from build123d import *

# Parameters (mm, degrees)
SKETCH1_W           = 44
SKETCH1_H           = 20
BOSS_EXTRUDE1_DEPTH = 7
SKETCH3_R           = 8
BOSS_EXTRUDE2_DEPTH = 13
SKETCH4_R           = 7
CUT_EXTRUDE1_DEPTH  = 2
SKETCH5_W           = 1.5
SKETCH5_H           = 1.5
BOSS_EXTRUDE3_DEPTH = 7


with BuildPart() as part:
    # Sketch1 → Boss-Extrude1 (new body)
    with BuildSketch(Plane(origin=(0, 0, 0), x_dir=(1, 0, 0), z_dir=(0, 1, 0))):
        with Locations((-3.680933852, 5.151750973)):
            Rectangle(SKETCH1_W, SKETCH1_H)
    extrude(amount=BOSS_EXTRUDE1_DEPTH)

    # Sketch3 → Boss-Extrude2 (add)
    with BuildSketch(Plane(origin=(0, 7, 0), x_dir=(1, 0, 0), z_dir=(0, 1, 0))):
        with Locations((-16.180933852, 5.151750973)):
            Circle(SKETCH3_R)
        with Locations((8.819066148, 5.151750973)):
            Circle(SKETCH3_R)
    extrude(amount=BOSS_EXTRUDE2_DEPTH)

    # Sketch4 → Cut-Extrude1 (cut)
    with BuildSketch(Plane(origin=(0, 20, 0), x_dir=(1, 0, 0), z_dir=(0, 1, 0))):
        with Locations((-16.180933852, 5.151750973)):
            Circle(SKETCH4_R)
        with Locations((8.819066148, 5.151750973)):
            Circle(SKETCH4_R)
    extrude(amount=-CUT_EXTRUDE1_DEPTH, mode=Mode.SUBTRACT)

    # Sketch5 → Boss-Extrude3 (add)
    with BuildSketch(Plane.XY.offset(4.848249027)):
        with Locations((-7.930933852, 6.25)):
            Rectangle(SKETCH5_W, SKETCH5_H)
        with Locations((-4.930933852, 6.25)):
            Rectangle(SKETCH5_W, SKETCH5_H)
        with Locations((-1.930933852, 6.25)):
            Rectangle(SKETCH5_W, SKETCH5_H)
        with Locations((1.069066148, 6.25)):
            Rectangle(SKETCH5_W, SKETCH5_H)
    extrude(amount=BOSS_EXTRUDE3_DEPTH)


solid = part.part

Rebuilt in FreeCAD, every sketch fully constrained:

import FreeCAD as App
import Part
import Sketcher
from FreeCAD import Vector


def add_polygon(sketch, points):
    """Adds a closed chain of lines whose ends are joined by coincident constraints."""
    first, n = sketch.GeometryCount, len(points)
    for a, b in zip(points, points[1:] + points[:1]):
        sketch.addGeometry(Part.LineSegment(App.Vector(*a, 0), App.Vector(*b, 0)), False)
    for i in range(n):
        sketch.addConstraint(Sketcher.Constraint("Coincident", first + i, 2, first + (i + 1) % n, 1))

doc = App.newDocument("Part")
params = doc.addObject("Spreadsheet::Sheet", "Params")
for row, (alias, value) in enumerate([
    ("sketch1_width", "44 mm"),
    ("sketch1_height", "20 mm"),
    ("pad1_length", "7 mm"),
    ("sketch2_diameter", "16 mm"),
    ("pad2_length", "13 mm"),
    ("sketch3_diameter", "14 mm"),
    ("pocket1_length", "2 mm"),
    ("sketch4_width", "1.5 mm"),
    ("pad3_length", "7 mm"),
], start=1):
    params.set(f"A{row}", alias)
    params.set(f"B{row}", "=" + value)
    params.setAlias(f"B{row}", alias)

body = doc.addObject("PartDesign::Body", "Body")

# Sketch on XZ plane
sketch1 = body.newObject("Sketcher::SketchObject", "Sketch")
sketch1.AttachmentSupport = (doc.getObject("XZ_Plane"), [""])
sketch1.MapMode = "FlatFace"
add_polygon(sketch1, [(-26, -15), (-26, 5), (18, 5), (18, -15)])  # lines 0-3
sketch1.addConstraint(Sketcher.Constraint("Vertical", 0))
sketch1.addConstraint(Sketcher.Constraint("Horizontal", 1))
sketch1.addConstraint(Sketcher.Constraint("Vertical", 2))
sketch1.addConstraint(Sketcher.Constraint("Horizontal", 3))
sketch1.addConstraint(Sketcher.Constraint("DistanceX", 1, 1, 1, 2, 44.0))
sketch1.addConstraint(Sketcher.Constraint("DistanceY", 0, 1, 0, 2, 20.0))
sketch1.addConstraint(Sketcher.Constraint("DistanceY", -1, 1, 0, 2, 4.848249))
sketch1.addConstraint(Sketcher.Constraint("DistanceX", 0, 2, -1, 1, 25.680934))
sketch1.setExpression("Constraints[8]", "Params.sketch1_width")
sketch1.setExpression("Constraints[9]", "Params.sketch1_height")
pad1 = body.newObject("PartDesign::Pad", "Pad")
pad1.Profile = sketch1
pad1.setExpression("Length", "Params.pad1_length")
pad1.Reversed = True

# Sketch on XZ plane
sketch2 = body.newObject("Sketcher::SketchObject", "Sketch001")
sketch2.AttachmentSupport = (doc.getObject("XZ_Plane"), [""])
sketch2.MapMode = "FlatFace"
sketch2.AttachmentOffset = App.Placement(Vector(0, 0, -7), App.Rotation())
sketch2.addGeometry(Part.Circle(Vector(-16, -5, 0), Vector(0, 0, 1), 8), False)
sketch2.addGeometry(Part.Circle(Vector(9, -5, 0), Vector(0, 0, 1), 8), False)
sketch2.addConstraint(Sketcher.Constraint("Equal", 0, 1))
sketch2.addConstraint(Sketcher.Constraint("Horizontal", 0, 3, 1, 3))
sketch2.addConstraint(Sketcher.Constraint("Diameter", 0, 16.0))
sketch2.addConstraint(Sketcher.Constraint("DistanceX", 0, 3, 1, 3, 25.0))
sketch2.addConstraint(Sketcher.Constraint("DistanceY", 0, 3, -1, 1, 5.151751))
sketch2.addConstraint(Sketcher.Constraint("DistanceX", 0, 3, -1, 1, 16.180934))
sketch2.setExpression("Constraints[2]", "Params.sketch2_diameter")
pad2 = body.newObject("PartDesign::Pad", "Pad001")
pad2.Profile = sketch2
pad2.setExpression("Length", "Params.pad2_length")
pad2.Reversed = True

# Sketch on XZ plane
sketch3 = body.newObject("Sketcher::SketchObject", "Sketch002")
sketch3.AttachmentSupport = (doc.getObject("XZ_Plane"), [""])
sketch3.MapMode = "FlatFace"
sketch3.AttachmentOffset = App.Placement(Vector(0, 0, -20), App.Rotation())
sketch3.addGeometry(Part.Circle(Vector(-16, -5, 0), Vector(0, 0, 1), 7), False)
sketch3.addGeometry(Part.Circle(Vector(9, -5, 0), Vector(0, 0, 1), 7), False)
sketch3.addConstraint(Sketcher.Constraint("Equal", 0, 1))
sketch3.addConstraint(Sketcher.Constraint("Horizontal", 0, 3, 1, 3))
sketch3.addConstraint(Sketcher.Constraint("Diameter", 0, 14.0))
sketch3.addConstraint(Sketcher.Constraint("DistanceX", 0, 3, 1, 3, 25.0))
sketch3.addConstraint(Sketcher.Constraint("DistanceY", 0, 3, -1, 1, 5.151751))
sketch3.addConstraint(Sketcher.Constraint("DistanceX", 0, 3, -1, 1, 16.180934))
sketch3.setExpression("Constraints[2]", "Params.sketch3_diameter")
pocket1 = body.newObject("PartDesign::Pocket", "Pocket")
pocket1.Profile = sketch3
pocket1.setExpression("Length", "Params.pocket1_length")
pocket1.Reversed = True

# Sketch on XY plane
sketch4 = body.newObject("Sketcher::SketchObject", "Sketch003")
sketch4.AttachmentSupport = (doc.getObject("XY_Plane"), [""])
sketch4.MapMode = "FlatFace"
sketch4.AttachmentOffset = App.Placement(Vector(0, 0, 4.848249), App.Rotation())
add_polygon(sketch4, [(-8.7, 7), (-8.7, 5.5), (-7.2, 5.5), (-7.2, 7)])  # lines 0-3
add_polygon(sketch4, [(-5.7, 7), (-5.7, 5.5), (-4.2, 5.5), (-4.2, 7)])  # lines 4-7
add_polygon(sketch4, [(-2.7, 7), (-2.7, 5.5), (-1.2, 5.5), (-1.2, 7)])  # lines 8-11
add_polygon(sketch4, [(0.3, 7), (0.3, 5.5), (1.8, 5.5), (1.8, 7)])  # lines 12-15
sketch4.addConstraint(Sketcher.Constraint("Vertical", 0))
sketch4.addConstraint(Sketcher.Constraint("Horizontal", 1))
sketch4.addConstraint(Sketcher.Constraint("Vertical", 2))
sketch4.addConstraint(Sketcher.Constraint("Horizontal", 3))
sketch4.addConstraint(Sketcher.Constraint("Vertical", 4))
sketch4.addConstraint(Sketcher.Constraint("Horizontal", 5))
sketch4.addConstraint(Sketcher.Constraint("Vertical", 6))
sketch4.addConstraint(Sketcher.Constraint("Horizontal", 7))
sketch4.addConstraint(Sketcher.Constraint("Vertical", 8))
sketch4.addConstraint(Sketcher.Constraint("Horizontal", 9))
sketch4.addConstraint(Sketcher.Constraint("Vertical", 10))
sketch4.addConstraint(Sketcher.Constraint("Horizontal", 11))
sketch4.addConstraint(Sketcher.Constraint("Vertical", 12))
sketch4.addConstraint(Sketcher.Constraint("Horizontal", 13))
sketch4.addConstraint(Sketcher.Constraint("Vertical", 14))
sketch4.addConstraint(Sketcher.Constraint("Horizontal", 15))
sketch4.addConstraint(Sketcher.Constraint("Horizontal", 1, 2, 4, 2))
sketch4.addConstraint(Sketcher.Constraint("Horizontal", 3, 2, 6, 2))
sketch4.addConstraint(Sketcher.Constraint("Horizontal", 5, 2, 8, 2))
sketch4.addConstraint(Sketcher.Constraint("Horizontal", 7, 2, 10, 2))
sketch4.addConstraint(Sketcher.Constraint("Horizontal", 9, 2, 12, 2))
sketch4.addConstraint(Sketcher.Constraint("Horizontal", 11, 2, 14, 2))
sketch4.addConstraint(Sketcher.Constraint("Equal", 3, 5))
sketch4.addConstraint(Sketcher.Constraint("Equal", 7, 9))
sketch4.addConstraint(Sketcher.Constraint("Equal", 11, 13))
sketch4.addConstraint(Sketcher.Constraint("Equal", 15, 0))
sketch4.addConstraint(Sketcher.Constraint("DistanceX", 1, 1, 1, 2, 1.5))
sketch4.addConstraint(Sketcher.Constraint("DistanceY", -1, 1, 2, 2, 7.0))
sketch4.addConstraint(Sketcher.Constraint("DistanceX", 0, 2, 4, 2, 3.0))
sketch4.addConstraint(Sketcher.Constraint("DistanceX", 4, 2, 8, 2, 3.0))
sketch4.addConstraint(Sketcher.Constraint("DistanceX", 8, 2, 12, 2, 3.0))
sketch4.addConstraint(Sketcher.Constraint("DistanceX", 0, 2, -1, 1, 8.680934))
sketch4.setExpression("Constraints[42]", "Params.sketch4_width")
pad3 = body.newObject("PartDesign::Pad", "Pad002")
pad3.Profile = sketch4
pad3.setExpression("Length", "Params.pad3_length")

doc.recompute()
